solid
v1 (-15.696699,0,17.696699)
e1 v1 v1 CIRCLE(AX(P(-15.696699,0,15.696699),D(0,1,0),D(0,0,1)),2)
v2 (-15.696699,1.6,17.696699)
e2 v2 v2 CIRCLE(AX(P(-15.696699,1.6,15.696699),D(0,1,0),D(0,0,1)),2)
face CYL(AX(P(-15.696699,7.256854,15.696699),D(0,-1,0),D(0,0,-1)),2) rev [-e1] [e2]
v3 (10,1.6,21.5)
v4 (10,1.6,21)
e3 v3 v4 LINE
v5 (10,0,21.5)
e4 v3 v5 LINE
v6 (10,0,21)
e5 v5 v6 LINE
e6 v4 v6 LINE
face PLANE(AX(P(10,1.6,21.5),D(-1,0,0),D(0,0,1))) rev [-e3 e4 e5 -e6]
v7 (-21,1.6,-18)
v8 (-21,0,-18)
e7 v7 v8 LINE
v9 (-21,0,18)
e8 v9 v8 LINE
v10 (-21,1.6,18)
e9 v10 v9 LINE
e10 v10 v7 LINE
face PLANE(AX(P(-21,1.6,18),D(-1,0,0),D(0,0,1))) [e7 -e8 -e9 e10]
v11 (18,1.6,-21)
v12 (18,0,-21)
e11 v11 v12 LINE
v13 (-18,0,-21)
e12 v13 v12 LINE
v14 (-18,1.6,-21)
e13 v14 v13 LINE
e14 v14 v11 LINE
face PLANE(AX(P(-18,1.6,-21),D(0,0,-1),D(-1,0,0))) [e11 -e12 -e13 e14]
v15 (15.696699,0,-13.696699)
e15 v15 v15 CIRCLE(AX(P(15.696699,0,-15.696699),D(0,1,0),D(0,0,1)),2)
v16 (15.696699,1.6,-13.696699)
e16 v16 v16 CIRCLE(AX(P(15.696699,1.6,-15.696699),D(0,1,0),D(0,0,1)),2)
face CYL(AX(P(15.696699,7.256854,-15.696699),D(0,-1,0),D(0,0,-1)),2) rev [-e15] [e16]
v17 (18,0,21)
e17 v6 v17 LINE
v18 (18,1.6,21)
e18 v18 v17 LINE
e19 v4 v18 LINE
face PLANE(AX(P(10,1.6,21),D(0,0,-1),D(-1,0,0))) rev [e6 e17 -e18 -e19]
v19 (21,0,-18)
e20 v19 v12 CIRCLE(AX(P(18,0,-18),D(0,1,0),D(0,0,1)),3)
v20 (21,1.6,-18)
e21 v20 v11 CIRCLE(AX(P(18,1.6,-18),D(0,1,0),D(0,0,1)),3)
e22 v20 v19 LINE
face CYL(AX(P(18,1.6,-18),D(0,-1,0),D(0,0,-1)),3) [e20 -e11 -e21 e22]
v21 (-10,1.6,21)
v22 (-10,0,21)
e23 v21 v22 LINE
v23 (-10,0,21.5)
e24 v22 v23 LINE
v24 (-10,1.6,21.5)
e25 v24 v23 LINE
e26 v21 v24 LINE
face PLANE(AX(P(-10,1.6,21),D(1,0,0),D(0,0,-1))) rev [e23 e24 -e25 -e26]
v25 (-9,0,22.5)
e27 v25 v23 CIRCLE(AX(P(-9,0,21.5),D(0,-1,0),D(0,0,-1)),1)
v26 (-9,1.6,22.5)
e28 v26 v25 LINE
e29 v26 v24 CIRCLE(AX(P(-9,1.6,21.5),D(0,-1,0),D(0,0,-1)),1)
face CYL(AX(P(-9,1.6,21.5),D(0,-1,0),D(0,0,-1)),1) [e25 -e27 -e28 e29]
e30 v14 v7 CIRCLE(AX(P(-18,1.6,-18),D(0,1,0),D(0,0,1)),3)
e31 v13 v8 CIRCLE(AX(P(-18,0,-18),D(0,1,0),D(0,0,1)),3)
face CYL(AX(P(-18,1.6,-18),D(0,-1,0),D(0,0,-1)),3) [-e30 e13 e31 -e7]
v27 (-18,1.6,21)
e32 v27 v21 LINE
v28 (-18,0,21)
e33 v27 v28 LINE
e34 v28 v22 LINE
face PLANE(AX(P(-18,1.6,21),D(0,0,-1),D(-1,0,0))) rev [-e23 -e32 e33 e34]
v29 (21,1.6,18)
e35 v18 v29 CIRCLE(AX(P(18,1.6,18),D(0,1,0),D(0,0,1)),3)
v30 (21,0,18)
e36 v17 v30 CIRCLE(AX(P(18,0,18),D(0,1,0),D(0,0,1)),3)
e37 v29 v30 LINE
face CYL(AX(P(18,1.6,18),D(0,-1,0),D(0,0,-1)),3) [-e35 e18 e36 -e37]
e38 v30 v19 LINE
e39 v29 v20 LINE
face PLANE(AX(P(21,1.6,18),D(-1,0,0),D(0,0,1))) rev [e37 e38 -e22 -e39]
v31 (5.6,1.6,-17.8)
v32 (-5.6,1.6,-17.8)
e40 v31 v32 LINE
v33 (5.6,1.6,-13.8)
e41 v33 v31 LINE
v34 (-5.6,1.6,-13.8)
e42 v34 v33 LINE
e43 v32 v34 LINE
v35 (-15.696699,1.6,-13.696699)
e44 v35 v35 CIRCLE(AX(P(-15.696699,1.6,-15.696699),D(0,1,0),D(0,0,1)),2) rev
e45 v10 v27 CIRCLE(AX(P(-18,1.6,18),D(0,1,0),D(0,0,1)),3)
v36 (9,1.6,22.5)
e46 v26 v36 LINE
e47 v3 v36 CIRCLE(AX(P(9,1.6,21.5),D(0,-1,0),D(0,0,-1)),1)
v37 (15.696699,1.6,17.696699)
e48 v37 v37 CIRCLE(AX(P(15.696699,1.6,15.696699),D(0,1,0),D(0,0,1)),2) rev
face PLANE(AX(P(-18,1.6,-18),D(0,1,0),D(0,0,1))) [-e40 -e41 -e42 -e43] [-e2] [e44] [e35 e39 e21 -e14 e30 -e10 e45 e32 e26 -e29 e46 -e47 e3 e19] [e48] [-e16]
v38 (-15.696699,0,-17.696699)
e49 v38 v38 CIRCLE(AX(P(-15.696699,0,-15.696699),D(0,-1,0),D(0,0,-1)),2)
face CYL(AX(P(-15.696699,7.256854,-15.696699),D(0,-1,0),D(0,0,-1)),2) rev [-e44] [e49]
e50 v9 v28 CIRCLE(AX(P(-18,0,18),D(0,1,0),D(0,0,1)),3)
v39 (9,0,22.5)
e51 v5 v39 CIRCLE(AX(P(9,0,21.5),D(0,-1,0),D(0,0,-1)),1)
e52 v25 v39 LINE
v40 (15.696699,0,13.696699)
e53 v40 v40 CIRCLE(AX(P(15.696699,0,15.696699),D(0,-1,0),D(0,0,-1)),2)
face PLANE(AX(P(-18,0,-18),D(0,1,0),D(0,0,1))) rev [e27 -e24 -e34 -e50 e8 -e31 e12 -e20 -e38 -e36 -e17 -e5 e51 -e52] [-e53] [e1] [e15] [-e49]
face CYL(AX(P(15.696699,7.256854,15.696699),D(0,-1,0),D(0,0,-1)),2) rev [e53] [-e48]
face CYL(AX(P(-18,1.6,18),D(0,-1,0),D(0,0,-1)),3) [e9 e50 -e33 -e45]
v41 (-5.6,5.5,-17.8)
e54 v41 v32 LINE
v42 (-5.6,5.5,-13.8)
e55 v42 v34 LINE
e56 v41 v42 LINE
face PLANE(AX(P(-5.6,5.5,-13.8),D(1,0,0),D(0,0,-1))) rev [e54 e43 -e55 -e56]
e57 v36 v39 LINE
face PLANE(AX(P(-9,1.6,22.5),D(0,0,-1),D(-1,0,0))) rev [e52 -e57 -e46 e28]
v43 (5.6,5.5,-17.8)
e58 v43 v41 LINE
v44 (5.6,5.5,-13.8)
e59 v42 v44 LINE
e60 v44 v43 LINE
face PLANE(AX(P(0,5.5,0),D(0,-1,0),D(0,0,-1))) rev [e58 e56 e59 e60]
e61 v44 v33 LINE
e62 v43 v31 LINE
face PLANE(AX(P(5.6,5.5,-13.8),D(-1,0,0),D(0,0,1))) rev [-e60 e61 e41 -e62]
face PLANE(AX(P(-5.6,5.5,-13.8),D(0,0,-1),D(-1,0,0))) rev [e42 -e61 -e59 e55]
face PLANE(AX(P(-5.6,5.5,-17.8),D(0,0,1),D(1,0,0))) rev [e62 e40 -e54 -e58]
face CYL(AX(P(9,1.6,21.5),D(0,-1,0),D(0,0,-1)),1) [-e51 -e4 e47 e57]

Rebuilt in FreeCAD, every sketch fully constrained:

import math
import FreeCAD as App
import Part
import Sketcher
from FreeCAD import Vector
Q = App.Units.Quantity

doc = App.newDocument("Part")
body = doc.addObject("PartDesign::Body", "Body")

# Sketch on XZ plane
sketch1 = doc.addObject("Sketcher::SketchObject", "Sketch")
body.addObject(sketch1)
sketch1.AttachmentSupport = (doc.XZ_Plane, [""])
sketch1.MapMode = "FlatFace"
sketch1.addGeometry([
    Part.LineSegment(Vector(-10, 21, 0), Vector(-10, 21.5, 0)),  # 0
    Part.ArcOfCircle(Part.Circle(Vector(-9, 21.5, 0), Vector(0, 0, 1), 1), math.radians(90), math.radians(180)),  # 1
    Part.LineSegment(Vector(-9, 22.5, 0), Vector(9, 22.5, 0)),  # 2
    Part.ArcOfCircle(Part.Circle(Vector(9, 21.5, 0), Vector(0, 0, 1), 1), math.radians(0), math.radians(90)),  # 3
    Part.LineSegment(Vector(10, 21.5, 0), Vector(10, 21, 0)),  # 4
    Part.LineSegment(Vector(10, 21, 0), Vector(18, 21, 0)),  # 5
    Part.ArcOfCircle(Part.Circle(Vector(18, 18, 0), Vector(0, 0, 1), 3), math.radians(0), math.radians(90)),  # 6
    Part.LineSegment(Vector(21, 18, 0), Vector(21, -18, 0)),  # 7
    Part.ArcOfCircle(Part.Circle(Vector(18, -18, 0), Vector(0, 0, 1), 3), math.radians(-90), math.radians(0)),  # 8
    Part.LineSegment(Vector(18, -21, 0), Vector(-18, -21, 0)),  # 9
    Part.ArcOfCircle(Part.Circle(Vector(-18, -18, 0), Vector(0, 0, 1), 3), math.radians(180), math.radians(270)),  # 10
    Part.LineSegment(Vector(-21, -18, 0), Vector(-21, 18, 0)),  # 11
    Part.ArcOfCircle(Part.Circle(Vector(-18, 18, 0), Vector(0, 0, 1), 3), math.radians(90), math.radians(180)),  # 12
    Part.LineSegment(Vector(-18, 21, 0), Vector(-10, 21, 0)),  # 13
], False)
sketch1.addConstraint([
    Sketcher.Constraint("Tangent", 0, 2, 1, 2),
    Sketcher.Constraint("Tangent", 1, 1, 2, 1),
    Sketcher.Constraint("Tangent", 2, 2, 3, 2),
    Sketcher.Constraint("Tangent", 3, 1, 4, 1),
    Sketcher.Constraint("Coincident", 4, 2, 5, 1),
    Sketcher.Constraint("Tangent", 5, 2, 6, 2),
    Sketcher.Constraint("Tangent", 6, 1, 7, 1),
    Sketcher.Constraint("Tangent", 7, 2, 8, 2),
    Sketcher.Constraint("Tangent", 8, 1, 9, 1),
    Sketcher.Constraint("Tangent", 9, 2, 10, 2),
    Sketcher.Constraint("Tangent", 10, 1, 11, 1),
    Sketcher.Constraint("Tangent", 11, 2, 12, 2),
    Sketcher.Constraint("Tangent", 12, 1, 13, 1),
    Sketcher.Constraint("Coincident", 13, 2, 0, 1),
    Sketcher.Constraint("Vertical", 0),
    Sketcher.Constraint("Horizontal", 2),
    Sketcher.Constraint("Vertical", 4),
    Sketcher.Constraint("Horizontal", 5),
    Sketcher.Constraint("Vertical", 7),
    Sketcher.Constraint("Horizontal", 9),
    Sketcher.Constraint("Vertical", 11),
    Sketcher.Constraint("Horizontal", 13),
    Sketcher.Constraint("Equal", 1, 3),
    Sketcher.Constraint("Equal", 6, 8),
    Sketcher.Constraint("Equal", 8, 10),
    Sketcher.Constraint("Equal", 10, 12),
    Sketcher.Constraint("Symmetric", 6, 3, 10, 3, -1, 1),
    Sketcher.Constraint("Symmetric", 4, 2, 13, 2, -2),
    Sketcher.Constraint("Equal", 9, 7),
    Sketcher.Constraint("Radius", 1, Q("1 mm")),
    Sketcher.Constraint("Radius", 6, Q("3 mm")),
    Sketcher.Constraint("DistanceX", 2, 1, 2, 2, Q("18 mm")),
    Sketcher.Constraint("DistanceX", 5, 1, 5, 2, Q("8 mm")),
    Sketcher.Constraint("DistanceY", 0, 1, 0, 2, Q("0.5 mm")),
])
pad1 = doc.addObject("PartDesign::Pad", "Pad")
body.addObject(pad1)
pad1.Profile = sketch1
pad1.Length = 1.6
pad1.Reversed = True

# Sketch on XZ plane
sketch2 = doc.addObject("Sketcher::SketchObject", "Sketch001")
body.addObject(sketch2)
sketch2.AttachmentSupport = (doc.XZ_Plane, [""])
sketch2.MapMode = "FlatFace"
sketch2.addGeometry([
    Part.Circle(Vector(15.696699, -15.696699, 0), Vector(0, 0, 1), 2),
    Part.Circle(Vector(-15.696699, -15.696699, 0), Vector(0, 0, 1), 2),
    Part.Circle(Vector(15.696699, 15.696699, 0), Vector(0, 0, 1), 2),
    Part.Circle(Vector(-15.696699, 15.696699, 0), Vector(0, 0, 1), 2),
], False)
sketch2.addConstraint([
    Sketcher.Constraint("Equal", 0, 1),
    Sketcher.Constraint("Equal", 1, 2),
    Sketcher.Constraint("Equal", 2, 3),
    Sketcher.Constraint("Symmetric", 1, 3, 2, 3, -1, 1),
    Sketcher.Constraint("Symmetric", 0, 3, 3, 3, -1, 1),
    Sketcher.Constraint("Symmetric", 0, 3, 1, 3, -2),
    Sketcher.Constraint("Diameter", 0, Q("4 mm")),
    Sketcher.Constraint("DistanceX", -1, 1, 0, 3, Q("15.696699 mm")),
    Sketcher.Constraint("DistanceY", 0, 3, -1, 1, Q("15.696699 mm")),
])
pocket1 = doc.addObject("PartDesign::Pocket", "Pocket")
body.addObject(pocket1)
pocket1.Profile = sketch2
pocket1.Length = 1.6

# Sketch on XZ plane
sketch3 = doc.addObject("Sketcher::SketchObject", "Sketch002")
body.addObject(sketch3)
sketch3.AttachmentSupport = (doc.XZ_Plane, [""])
sketch3.MapMode = "FlatFace"
sketch3.AttachmentOffset = App.Placement(Vector(0, 0, -1.6), App.Rotation())
sketch3.addGeometry([
    Part.LineSegment(Vector(-5.6, -17.8, 0), Vector(-5.6, -13.8, 0)),
    Part.LineSegment(Vector(-5.6, -13.8, 0), Vector(5.6, -13.8, 0)),
    Part.LineSegment(Vector(5.6, -13.8, 0), Vector(5.6, -17.8, 0)),
    Part.LineSegment(Vector(5.6, -17.8, 0), Vector(-5.6, -17.8, 0)),
], False)
sketch3.addConstraint([
    Sketcher.Constraint("Coincident", 0, 2, 1, 1),
    Sketcher.Constraint("Coincident", 1, 2, 2, 1),
    Sketcher.Constraint("Coincident", 2, 2, 3, 1),
    Sketcher.Constraint("Coincident", 3, 2, 0, 1),
    Sketcher.Constraint("Vertical", 0),
    Sketcher.Constraint("Horizontal", 1),
    Sketcher.Constraint("Vertical", 2),
    Sketcher.Constraint("Horizontal", 3),
    Sketcher.Constraint("DistanceY", 0, 1, 0, 2, Q("4 mm")),
    Sketcher.Constraint("DistanceX", 1, 1, 1, 2, Q("11.2 mm")),
    Sketcher.Constraint("DistanceX", 0, 2, -1, 1, Q("5.6 mm")),
    Sketcher.Constraint("DistanceY", 0, 2, -1, 1, Q("13.8 mm")),
])
pad2 = doc.addObject("PartDesign::Pad", "Pad001")
body.addObject(pad2)
pad2.Profile = sketch3
pad2.Length = 3.9
pad2.Reversed = True

doc.recompute()
